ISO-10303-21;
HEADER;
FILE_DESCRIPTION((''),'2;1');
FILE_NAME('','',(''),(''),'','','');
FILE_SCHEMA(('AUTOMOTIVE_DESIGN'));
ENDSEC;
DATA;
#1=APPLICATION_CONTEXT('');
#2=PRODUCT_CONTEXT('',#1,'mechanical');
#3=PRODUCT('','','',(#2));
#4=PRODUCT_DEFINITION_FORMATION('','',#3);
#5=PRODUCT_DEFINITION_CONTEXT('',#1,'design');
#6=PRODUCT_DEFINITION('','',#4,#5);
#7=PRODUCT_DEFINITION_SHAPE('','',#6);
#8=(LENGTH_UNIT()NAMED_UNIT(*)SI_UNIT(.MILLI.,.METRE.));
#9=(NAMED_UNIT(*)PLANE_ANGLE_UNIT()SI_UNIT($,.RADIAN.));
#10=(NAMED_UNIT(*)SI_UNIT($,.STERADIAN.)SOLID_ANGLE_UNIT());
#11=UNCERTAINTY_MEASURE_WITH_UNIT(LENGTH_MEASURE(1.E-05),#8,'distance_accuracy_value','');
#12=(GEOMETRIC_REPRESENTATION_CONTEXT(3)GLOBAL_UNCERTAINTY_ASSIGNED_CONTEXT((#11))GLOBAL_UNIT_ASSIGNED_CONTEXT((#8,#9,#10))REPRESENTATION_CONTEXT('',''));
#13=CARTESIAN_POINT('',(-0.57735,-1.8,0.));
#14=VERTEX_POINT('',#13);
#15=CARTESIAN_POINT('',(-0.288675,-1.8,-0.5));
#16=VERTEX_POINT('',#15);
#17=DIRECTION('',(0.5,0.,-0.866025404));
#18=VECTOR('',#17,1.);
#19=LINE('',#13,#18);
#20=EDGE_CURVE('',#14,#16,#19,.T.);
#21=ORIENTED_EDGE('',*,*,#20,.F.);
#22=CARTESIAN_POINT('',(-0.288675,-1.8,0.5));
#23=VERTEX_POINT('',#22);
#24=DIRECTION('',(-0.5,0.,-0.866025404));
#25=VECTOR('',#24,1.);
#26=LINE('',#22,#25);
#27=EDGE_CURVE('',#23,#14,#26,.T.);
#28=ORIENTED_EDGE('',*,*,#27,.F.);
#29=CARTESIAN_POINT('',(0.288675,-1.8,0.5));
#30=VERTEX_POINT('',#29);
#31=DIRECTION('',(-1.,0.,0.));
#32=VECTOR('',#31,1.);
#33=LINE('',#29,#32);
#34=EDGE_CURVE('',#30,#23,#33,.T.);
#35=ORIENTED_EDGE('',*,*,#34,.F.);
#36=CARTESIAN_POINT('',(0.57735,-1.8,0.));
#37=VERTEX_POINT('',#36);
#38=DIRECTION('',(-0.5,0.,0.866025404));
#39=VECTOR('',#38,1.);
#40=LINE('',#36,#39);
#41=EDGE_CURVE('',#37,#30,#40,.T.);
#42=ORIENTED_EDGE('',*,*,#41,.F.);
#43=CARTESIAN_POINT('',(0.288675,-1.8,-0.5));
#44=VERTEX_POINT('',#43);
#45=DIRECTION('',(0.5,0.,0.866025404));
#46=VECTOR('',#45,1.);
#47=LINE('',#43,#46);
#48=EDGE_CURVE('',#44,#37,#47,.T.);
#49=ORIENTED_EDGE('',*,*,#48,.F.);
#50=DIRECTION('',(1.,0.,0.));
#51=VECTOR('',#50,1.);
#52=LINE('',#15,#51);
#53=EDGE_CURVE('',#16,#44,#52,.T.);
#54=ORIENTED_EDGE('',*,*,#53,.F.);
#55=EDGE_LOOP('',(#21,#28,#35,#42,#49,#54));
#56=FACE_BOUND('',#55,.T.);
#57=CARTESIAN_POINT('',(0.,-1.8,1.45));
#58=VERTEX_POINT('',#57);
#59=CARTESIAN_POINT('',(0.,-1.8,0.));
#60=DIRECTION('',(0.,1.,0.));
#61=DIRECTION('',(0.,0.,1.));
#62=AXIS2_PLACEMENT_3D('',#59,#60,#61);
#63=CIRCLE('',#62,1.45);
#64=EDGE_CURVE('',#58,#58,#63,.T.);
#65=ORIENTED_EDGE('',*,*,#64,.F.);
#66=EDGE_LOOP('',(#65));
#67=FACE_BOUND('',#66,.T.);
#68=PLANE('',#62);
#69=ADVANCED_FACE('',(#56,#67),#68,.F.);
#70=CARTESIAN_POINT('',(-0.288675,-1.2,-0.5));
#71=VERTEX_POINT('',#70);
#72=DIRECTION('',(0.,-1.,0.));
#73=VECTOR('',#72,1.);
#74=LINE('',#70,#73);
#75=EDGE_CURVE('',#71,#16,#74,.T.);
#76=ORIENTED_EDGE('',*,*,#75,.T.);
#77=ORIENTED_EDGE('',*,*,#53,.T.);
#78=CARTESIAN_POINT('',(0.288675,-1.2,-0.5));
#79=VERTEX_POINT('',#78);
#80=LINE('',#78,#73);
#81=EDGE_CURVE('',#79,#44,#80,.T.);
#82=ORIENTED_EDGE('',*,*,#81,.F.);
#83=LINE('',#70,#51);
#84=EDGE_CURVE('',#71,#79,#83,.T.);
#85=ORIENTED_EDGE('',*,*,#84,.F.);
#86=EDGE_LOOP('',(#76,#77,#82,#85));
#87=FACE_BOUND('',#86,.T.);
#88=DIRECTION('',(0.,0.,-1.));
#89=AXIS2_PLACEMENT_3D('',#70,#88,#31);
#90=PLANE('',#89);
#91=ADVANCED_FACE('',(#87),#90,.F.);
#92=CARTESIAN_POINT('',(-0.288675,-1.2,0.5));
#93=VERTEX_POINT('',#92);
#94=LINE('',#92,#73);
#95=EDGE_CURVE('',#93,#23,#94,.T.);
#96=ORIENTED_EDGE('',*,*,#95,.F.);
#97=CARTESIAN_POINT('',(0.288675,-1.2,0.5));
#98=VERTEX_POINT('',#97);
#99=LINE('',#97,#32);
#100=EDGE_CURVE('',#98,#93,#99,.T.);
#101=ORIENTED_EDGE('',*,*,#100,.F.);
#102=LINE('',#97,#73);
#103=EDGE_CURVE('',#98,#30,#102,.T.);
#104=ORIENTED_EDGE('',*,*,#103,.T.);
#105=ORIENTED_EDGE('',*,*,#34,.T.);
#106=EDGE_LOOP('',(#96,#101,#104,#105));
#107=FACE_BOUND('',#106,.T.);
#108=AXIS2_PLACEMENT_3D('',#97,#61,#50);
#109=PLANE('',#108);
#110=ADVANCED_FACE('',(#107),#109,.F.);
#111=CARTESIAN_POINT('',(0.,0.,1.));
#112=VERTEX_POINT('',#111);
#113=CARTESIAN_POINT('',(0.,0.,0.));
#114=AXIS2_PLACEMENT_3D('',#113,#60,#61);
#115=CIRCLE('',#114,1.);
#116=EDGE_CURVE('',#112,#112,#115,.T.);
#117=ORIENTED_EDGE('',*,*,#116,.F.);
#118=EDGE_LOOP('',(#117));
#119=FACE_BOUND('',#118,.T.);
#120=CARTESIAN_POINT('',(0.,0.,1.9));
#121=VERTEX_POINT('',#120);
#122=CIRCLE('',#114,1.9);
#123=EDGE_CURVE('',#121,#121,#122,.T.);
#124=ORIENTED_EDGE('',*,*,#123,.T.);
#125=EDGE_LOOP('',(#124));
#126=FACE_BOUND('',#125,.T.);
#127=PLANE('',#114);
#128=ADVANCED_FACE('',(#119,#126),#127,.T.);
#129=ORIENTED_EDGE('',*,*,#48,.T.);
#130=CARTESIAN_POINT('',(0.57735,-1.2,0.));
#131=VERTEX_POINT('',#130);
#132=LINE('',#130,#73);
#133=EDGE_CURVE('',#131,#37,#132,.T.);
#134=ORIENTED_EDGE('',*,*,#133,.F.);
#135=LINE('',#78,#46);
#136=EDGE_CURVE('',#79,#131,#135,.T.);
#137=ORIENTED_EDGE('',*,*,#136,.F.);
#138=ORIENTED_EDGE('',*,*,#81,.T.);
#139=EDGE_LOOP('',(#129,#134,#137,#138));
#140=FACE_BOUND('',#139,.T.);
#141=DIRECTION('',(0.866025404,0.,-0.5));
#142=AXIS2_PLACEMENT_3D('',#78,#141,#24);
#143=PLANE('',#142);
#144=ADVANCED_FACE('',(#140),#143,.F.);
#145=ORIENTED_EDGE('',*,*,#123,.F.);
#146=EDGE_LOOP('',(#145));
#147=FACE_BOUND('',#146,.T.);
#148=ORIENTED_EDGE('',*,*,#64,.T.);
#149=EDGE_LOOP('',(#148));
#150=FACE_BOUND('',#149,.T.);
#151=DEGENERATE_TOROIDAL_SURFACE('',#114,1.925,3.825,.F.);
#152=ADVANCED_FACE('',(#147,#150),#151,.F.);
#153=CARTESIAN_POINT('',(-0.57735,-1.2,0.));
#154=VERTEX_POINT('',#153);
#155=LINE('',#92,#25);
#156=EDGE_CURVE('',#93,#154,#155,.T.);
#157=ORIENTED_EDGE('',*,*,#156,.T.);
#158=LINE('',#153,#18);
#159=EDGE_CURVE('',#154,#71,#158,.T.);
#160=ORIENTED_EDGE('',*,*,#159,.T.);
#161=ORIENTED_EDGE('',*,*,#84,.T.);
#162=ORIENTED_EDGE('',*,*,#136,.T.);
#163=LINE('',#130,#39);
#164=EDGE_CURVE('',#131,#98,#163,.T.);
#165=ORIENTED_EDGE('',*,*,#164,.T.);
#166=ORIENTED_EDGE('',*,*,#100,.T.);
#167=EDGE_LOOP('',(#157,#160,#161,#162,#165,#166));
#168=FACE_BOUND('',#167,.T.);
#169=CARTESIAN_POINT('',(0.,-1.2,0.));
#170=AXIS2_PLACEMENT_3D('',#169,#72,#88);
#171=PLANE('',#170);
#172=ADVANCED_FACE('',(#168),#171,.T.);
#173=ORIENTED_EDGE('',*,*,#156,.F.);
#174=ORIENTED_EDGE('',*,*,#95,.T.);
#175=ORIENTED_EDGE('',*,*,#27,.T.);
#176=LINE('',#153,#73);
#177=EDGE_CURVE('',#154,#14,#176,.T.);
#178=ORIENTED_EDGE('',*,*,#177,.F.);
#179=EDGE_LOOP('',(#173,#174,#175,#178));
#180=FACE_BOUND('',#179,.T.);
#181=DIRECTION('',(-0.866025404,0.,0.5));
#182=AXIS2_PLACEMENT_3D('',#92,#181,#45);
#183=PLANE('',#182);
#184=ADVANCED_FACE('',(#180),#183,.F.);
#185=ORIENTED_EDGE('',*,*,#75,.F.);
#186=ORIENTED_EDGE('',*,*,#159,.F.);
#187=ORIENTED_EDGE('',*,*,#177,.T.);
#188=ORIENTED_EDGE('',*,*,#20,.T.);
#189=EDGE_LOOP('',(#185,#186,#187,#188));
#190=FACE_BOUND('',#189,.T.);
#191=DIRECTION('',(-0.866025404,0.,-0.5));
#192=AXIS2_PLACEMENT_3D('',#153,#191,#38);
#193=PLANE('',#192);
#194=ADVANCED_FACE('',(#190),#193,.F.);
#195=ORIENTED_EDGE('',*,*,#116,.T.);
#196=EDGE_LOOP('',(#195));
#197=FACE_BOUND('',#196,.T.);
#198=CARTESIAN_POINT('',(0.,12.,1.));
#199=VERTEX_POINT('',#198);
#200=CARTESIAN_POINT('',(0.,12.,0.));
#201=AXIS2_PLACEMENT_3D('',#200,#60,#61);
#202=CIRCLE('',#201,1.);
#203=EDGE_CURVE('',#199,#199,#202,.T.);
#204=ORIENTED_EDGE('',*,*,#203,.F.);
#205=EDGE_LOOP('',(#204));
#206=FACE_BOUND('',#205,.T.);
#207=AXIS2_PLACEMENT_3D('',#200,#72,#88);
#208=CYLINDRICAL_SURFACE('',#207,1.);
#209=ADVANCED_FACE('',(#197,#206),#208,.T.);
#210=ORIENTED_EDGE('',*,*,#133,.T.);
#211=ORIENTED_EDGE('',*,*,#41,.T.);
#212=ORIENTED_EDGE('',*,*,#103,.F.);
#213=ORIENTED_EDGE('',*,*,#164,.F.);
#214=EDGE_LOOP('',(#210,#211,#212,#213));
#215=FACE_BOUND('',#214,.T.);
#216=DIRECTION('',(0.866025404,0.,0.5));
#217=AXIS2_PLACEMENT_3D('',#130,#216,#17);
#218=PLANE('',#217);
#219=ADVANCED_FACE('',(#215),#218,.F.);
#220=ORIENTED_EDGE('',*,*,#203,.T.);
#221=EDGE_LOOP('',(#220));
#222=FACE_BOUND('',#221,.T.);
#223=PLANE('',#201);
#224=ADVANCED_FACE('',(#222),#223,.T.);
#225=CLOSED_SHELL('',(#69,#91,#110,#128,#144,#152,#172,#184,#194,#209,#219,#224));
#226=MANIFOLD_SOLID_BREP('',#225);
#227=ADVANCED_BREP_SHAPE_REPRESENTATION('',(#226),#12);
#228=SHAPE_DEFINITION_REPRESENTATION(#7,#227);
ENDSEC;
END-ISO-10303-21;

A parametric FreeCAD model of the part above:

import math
import FreeCAD as App
import Part
import Sketcher
from FreeCAD import Vector
Q = App.Units.Quantity

doc = App.newDocument("Part")
body = doc.addObject("PartDesign::Body", "Body")

# Sketch on XZ plane
sketch1 = doc.addObject("Sketcher::SketchObject", "Sketch")
body.addObject(sketch1)
sketch1.AttachmentSupport = (doc.XZ_Plane, [""])
sketch1.MapMode = "FlatFace"
sketch1.addGeometry(Part.Circle(Vector(0, 0, 0), Vector(0, 0, 1), 1), False)
sketch1.addConstraint(Sketcher.Constraint("Coincident", 0, 3, -1, 1))
sketch1.addConstraint(Sketcher.Constraint("Diameter", 0, 2.0))
pad1 = doc.addObject("PartDesign::Pad", "Pad")
body.addObject(pad1)
pad1.Profile = sketch1
pad1.Length = 12
pad1.Reversed = True

# Sketch on XZ plane
sketch2 = doc.addObject("Sketcher::SketchObject", "Sketch001")
body.addObject(sketch2)
sketch2.AttachmentSupport = (doc.XZ_Plane, [""])
sketch2.MapMode = "FlatFace"
sketch2.AttachmentOffset = App.Placement(Vector(0, 0, 1.8), App.Rotation())
sketch2.addGeometry(Part.Circle(Vector(0, 0, 0), Vector(0, 0, 1), 1.9), False)
sketch2.addConstraint(Sketcher.Constraint("Coincident", 0, 3, -1, 1))
sketch2.addConstraint(Sketcher.Constraint("Diameter", 0, 3.8))
pad2 = doc.addObject("PartDesign::Pad", "Pad001")
body.addObject(pad2)
pad2.Profile = sketch2
pad2.Length = 1.8
pad2.Reversed = True

# Sketch on XY plane
sketch3 = doc.addObject("Sketcher::SketchObject", "Sketch002")
body.addObject(sketch3)
sketch3.AttachmentSupport = (doc.XY_Plane, [""])
sketch3.MapMode = "FlatFace"
sketch3.addGeometry(Part.LineSegment(Vector(-1.9, 0, 0), Vector(-1.9, -1.8, 0)), False)
sketch3.addGeometry(Part.LineSegment(Vector(-1.9, -1.8, 0), Vector(-1.45, -1.8, 0)), False)
sketch3.addGeometry(Part.ArcOfCircle(Part.Circle(Vector(1.93, 0, 0), Vector(0, 0, 1), 3.83), math.radians(180), math.radians(208)), False)
sketch3.addConstraint(Sketcher.Constraint("Coincident", 0, 2, 1, 1))
sketch3.addConstraint(Sketcher.Constraint("Coincident", 1, 2, 2, 2))
sketch3.addConstraint(Sketcher.Constraint("Tangent", 2, 1, 0, 1))
sketch3.addConstraint(Sketcher.Constraint("Vertical", 0))
sketch3.addConstraint(Sketcher.Constraint("Horizontal", 1))
sketch3.addConstraint(Sketcher.Constraint("PointOnObject", 2, 3, -1))
sketch3.addConstraint(Sketcher.Constraint("DistanceY", 0, 2, 0, 1, 1.8))
sketch3.addConstraint(Sketcher.Constraint("Radius", 2, 3.825))
sketch3.addConstraint(Sketcher.Constraint("DistanceX", 0, 2, -1, 1, 1.9))
groove = doc.addObject("PartDesign::Groove", "Groove")
body.addObject(groove)
groove.Profile = sketch3
groove.ReferenceAxis = (sketch3, ["V_Axis"])
groove.Angle = 360

# Sketch on XZ plane
sketch4 = doc.addObject("Sketcher::SketchObject", "Sketch003")
body.addObject(sketch4)
sketch4.AttachmentSupport = (doc.XZ_Plane, [""])
sketch4.MapMode = "FlatFace"
sketch4.AttachmentOffset = App.Placement(Vector(0, 0, 1.8), App.Rotation())
sketch4.addGeometry(Part.LineSegment(Vector(-0.3, -0.5, 0), Vector(0.3, -0.5, 0)), False)
sketch4.addGeometry(Part.LineSegment(Vector(0.3, -0.5, 0), Vector(0.6, 0, 0)), False)
sketch4.addGeometry(Part.LineSegment(Vector(0.6, 0, 0), Vector(0.3, 0.5, 0)), False)
sketch4.addGeometry(Part.LineSegment(Vector(0.3, 0.5, 0), Vector(-0.3, 0.5, 0)), False)
sketch4.addGeometry(Part.LineSegment(Vector(-0.3, 0.5, 0), Vector(-0.6, 0, 0)), False)
sketch4.addGeometry(Part.LineSegment(Vector(-0.6, 0, 0), Vector(-0.3, -0.5, 0)), False)
sketch4.addConstraint(Sketcher.Constraint("Coincident", 0, 2, 1, 1))
sketch4.addConstraint(Sketcher.Constraint("Coincident", 1, 2, 2, 1))
sketch4.addConstraint(Sketcher.Constraint("Coincident", 2, 2, 3, 1))
sketch4.addConstraint(Sketcher.Constraint("Coincident", 3, 2, 4, 1))
sketch4.addConstraint(Sketcher.Constraint("Coincident", 4, 2, 5, 1))
sketch4.addConstraint(Sketcher.Constraint("Coincident", 5, 2, 0, 1))
sketch4.addConstraint(Sketcher.Constraint("Horizontal", 0))
sketch4.addConstraint(Sketcher.Constraint("Horizontal", 3))
sketch4.addConstraint(Sketcher.Constraint("Symmetric", 0, 2, 3, 2, -1, 1))
sketch4.addConstraint(Sketcher.Constraint("Symmetric", 1, 2, 4, 2, -1, 1))
sketch4.addConstraint(Sketcher.Constraint("PointOnObject", 1, 2, -1))
sketch4.addConstraint(Sketcher.Constraint("Parallel", 2, 5))
sketch4.addConstraint(Sketcher.Constraint("Vertical", 0, 2, 2, 2))
sketch4.addConstraint(Sketcher.Constraint("Angle", 1, Q("60 deg")))
sketch4.addConstraint(Sketcher.Constraint("DistanceY", 0, 2, 2, 2, 1.0))
sketch4.addConstraint(Sketcher.Constraint("DistanceX", 0, 1, 0, 2, 0.57735))
pocket1 = doc.addObject("PartDesign::Pocket", "Pocket")
body.addObject(pocket1)
pocket1.Profile = sketch4
pocket1.Length = 0.6

doc.recompute()
